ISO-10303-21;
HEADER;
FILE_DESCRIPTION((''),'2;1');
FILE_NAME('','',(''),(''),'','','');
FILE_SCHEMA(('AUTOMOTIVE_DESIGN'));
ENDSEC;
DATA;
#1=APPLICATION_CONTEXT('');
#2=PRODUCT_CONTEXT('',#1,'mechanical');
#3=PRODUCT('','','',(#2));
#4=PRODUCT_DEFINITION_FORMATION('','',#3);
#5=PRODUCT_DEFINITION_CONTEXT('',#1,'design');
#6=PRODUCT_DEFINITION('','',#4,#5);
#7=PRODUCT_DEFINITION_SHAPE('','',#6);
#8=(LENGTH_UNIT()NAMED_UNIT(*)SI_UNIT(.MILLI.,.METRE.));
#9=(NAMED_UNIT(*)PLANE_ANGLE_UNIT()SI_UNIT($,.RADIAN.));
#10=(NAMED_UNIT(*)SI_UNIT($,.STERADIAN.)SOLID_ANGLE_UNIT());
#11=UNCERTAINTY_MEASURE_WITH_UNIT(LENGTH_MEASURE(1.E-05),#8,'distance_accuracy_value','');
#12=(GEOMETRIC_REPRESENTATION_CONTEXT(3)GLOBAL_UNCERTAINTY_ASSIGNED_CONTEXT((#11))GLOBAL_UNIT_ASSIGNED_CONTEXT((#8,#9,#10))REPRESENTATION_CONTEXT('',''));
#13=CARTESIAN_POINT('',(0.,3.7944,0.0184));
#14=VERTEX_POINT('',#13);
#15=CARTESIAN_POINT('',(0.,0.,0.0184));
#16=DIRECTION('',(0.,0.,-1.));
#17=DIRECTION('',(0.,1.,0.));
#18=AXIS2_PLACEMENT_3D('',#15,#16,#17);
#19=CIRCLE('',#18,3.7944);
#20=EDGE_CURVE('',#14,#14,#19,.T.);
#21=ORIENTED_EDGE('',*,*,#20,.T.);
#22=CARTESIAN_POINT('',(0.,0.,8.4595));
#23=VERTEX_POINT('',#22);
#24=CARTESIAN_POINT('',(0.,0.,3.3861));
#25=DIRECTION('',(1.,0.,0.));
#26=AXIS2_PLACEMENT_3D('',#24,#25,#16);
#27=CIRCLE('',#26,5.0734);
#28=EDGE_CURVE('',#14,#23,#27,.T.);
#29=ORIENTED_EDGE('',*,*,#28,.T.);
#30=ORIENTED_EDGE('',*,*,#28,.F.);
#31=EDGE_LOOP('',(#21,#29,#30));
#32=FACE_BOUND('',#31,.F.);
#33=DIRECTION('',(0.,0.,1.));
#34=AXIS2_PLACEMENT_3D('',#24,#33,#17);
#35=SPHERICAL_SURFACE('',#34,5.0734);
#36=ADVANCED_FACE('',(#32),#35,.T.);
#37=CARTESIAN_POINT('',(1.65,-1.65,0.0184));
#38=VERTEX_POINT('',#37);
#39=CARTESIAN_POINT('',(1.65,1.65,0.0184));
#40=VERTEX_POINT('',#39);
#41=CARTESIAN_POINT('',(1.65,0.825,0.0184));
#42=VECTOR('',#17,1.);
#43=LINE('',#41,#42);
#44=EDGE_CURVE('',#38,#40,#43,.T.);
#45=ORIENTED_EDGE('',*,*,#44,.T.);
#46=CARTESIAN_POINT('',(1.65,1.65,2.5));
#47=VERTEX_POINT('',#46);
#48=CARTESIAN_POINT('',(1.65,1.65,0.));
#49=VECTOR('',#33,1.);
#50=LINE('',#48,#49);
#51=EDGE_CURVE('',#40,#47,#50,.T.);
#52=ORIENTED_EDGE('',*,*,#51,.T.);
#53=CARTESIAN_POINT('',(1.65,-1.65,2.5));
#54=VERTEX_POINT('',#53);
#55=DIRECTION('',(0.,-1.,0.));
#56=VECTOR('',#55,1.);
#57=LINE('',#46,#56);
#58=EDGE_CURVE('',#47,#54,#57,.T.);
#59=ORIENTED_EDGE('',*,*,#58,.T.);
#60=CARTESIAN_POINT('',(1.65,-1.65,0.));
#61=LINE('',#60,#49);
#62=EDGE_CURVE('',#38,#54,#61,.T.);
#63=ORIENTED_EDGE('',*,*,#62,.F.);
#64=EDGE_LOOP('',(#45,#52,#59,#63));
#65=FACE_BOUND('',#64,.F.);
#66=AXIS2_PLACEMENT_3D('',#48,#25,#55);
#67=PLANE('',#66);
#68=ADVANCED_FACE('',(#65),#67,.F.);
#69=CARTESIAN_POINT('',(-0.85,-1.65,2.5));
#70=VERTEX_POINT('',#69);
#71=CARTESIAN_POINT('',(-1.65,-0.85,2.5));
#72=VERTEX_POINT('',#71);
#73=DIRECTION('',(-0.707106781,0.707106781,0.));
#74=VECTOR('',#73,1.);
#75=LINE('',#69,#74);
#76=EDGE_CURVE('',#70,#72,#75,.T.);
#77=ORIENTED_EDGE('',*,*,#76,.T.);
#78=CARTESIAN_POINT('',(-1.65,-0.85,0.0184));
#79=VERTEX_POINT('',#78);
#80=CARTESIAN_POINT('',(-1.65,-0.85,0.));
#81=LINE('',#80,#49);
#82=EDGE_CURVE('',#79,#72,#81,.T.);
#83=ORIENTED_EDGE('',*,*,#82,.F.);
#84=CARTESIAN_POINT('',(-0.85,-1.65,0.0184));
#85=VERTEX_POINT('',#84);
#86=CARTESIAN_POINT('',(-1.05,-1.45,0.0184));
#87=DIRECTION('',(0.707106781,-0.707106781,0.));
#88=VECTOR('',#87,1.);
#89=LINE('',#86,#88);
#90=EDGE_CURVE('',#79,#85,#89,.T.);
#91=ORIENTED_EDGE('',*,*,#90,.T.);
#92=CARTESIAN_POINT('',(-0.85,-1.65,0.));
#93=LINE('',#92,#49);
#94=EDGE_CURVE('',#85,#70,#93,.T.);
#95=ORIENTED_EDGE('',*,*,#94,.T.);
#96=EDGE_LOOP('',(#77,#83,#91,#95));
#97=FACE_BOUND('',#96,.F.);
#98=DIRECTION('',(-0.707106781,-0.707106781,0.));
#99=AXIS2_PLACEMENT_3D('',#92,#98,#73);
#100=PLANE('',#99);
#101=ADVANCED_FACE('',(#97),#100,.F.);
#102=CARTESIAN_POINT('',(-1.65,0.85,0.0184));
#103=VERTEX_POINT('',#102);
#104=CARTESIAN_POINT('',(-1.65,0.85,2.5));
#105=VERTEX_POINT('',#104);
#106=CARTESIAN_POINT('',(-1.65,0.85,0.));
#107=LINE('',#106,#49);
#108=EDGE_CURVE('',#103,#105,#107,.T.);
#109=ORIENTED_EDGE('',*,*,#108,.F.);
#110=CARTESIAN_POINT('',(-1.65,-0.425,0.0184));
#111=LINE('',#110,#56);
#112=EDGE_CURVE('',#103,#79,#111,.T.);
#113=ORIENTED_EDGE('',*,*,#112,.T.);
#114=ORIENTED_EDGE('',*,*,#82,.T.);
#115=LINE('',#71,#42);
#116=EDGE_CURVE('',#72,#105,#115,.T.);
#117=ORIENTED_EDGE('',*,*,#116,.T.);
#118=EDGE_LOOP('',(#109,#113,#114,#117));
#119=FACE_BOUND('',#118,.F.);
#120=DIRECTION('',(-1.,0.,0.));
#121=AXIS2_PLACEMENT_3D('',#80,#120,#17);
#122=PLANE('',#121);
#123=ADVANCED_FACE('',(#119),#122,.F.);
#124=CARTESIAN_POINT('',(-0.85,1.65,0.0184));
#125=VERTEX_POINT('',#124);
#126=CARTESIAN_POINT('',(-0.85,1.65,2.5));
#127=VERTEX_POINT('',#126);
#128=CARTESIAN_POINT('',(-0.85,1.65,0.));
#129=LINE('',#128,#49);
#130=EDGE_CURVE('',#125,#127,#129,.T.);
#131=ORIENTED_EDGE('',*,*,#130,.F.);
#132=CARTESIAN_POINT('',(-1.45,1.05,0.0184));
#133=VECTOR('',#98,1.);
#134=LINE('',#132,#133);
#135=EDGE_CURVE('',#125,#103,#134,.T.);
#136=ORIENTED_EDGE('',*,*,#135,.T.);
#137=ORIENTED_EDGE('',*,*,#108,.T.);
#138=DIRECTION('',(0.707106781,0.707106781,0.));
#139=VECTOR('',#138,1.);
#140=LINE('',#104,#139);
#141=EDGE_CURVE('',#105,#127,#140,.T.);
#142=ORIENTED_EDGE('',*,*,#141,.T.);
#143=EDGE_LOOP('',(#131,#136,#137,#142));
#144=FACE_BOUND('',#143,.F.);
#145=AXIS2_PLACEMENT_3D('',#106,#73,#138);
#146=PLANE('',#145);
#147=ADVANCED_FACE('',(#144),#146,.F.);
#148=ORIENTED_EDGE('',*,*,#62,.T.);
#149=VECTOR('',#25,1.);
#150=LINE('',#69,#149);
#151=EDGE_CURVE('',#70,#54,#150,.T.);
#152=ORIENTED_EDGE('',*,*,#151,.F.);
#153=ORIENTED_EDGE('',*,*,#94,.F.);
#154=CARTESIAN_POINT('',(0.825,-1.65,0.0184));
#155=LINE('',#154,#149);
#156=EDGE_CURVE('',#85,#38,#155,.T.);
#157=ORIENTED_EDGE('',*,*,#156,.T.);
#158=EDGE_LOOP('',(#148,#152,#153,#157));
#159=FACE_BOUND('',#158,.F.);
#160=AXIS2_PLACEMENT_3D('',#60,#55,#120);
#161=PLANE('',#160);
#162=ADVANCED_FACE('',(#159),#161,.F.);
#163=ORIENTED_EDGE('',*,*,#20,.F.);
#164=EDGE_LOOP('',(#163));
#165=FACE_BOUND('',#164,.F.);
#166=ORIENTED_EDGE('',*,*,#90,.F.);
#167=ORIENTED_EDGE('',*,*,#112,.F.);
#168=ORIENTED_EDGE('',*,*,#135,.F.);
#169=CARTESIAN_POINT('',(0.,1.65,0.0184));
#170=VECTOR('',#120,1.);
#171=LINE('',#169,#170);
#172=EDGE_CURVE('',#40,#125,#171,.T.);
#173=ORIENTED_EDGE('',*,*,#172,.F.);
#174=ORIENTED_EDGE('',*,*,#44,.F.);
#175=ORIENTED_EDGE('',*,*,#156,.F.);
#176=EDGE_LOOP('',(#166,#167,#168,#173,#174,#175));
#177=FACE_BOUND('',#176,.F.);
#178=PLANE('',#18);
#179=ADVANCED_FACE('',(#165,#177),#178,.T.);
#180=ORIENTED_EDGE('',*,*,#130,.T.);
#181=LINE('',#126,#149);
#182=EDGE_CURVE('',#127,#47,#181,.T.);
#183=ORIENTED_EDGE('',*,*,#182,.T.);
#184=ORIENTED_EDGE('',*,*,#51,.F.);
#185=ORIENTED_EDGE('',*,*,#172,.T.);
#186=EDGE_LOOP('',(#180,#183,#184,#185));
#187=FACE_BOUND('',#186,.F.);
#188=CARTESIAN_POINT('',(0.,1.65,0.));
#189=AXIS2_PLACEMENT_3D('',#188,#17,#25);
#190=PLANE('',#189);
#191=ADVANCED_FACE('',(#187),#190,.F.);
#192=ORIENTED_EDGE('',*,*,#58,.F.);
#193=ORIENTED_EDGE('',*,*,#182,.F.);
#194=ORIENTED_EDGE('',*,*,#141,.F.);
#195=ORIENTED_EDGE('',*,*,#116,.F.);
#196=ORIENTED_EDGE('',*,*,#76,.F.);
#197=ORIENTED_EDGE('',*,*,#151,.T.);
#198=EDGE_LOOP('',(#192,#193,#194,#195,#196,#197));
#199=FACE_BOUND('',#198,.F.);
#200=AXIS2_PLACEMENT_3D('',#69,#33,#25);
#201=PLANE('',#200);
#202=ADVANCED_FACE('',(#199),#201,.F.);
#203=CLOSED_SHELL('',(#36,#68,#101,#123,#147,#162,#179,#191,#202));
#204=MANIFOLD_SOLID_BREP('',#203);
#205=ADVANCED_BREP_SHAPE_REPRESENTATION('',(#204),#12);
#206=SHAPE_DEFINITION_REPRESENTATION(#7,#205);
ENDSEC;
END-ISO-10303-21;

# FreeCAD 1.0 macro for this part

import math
import FreeCAD as App
import Part
import Sketcher

V = App.Vector
Q = App.Units.Quantity


def add_polygon(sketch, points):
    """Adds a closed chain of lines whose ends are joined by coincident constraints."""
    first, n = sketch.GeometryCount, len(points)
    for a, b in zip(points, points[1:] + points[:1]):
        sketch.addGeometry(Part.LineSegment(App.Vector(*a, 0), App.Vector(*b, 0)), False)
    for i in range(n):
        sketch.addConstraint(Sketcher.Constraint("Coincident", first + i, 2, first + (i + 1) % n, 1))

doc = App.newDocument("Part")
body = doc.addObject("PartDesign::Body", "Body")

# Sketch on YZ plane
sketch1 = body.newObject("Sketcher::SketchObject", "Sketch")
sketch1.AttachmentSupport = (doc.getObject("YZ_Plane"), [""])
sketch1.MapMode = "FlatFace"
sketch1.addGeometry(Part.LineSegment(V(0, 0, 0), V(3.8, 0, 0)), False)
sketch1.addGeometry(Part.ArcOfCircle(Part.Circle(V(0, 3.4, 0), V(0, 0, 1), 5.1), math.radians(-42), math.radians(90)), False)
sketch1.addGeometry(Part.LineSegment(V(0, 8.5, 0), V(0, 0, 0)), False)
sketch1.addConstraint(Sketcher.Constraint("Coincident", 0, 2, 1, 1))
sketch1.addConstraint(Sketcher.Constraint("Coincident", 1, 2, 2, 1))
sketch1.addConstraint(Sketcher.Constraint("Coincident", 2, 2, 0, 1))
sketch1.addConstraint(Sketcher.Constraint("Horizontal", 0))
sketch1.addConstraint(Sketcher.Constraint("Vertical", 2))
sketch1.addConstraint(Sketcher.Constraint("PointOnObject", 1, 3, -2))
sketch1.addConstraint(Sketcher.Constraint("PointOnObject", 1, 2, -2))
sketch1.addConstraint(Sketcher.Constraint("Radius", 1, Q("5.0734 mm")))
sketch1.addConstraint(Sketcher.Constraint("DistanceY", 2, 2, 2, 1, Q("8.441 mm")))
sketch1.addConstraint(Sketcher.Constraint("DistanceY", -1, 1, 1, 3, Q("3.386 mm")))
revolution = body.newObject("PartDesign::Revolution", "Revolution")
revolution.Profile = sketch1
revolution.ReferenceAxis = (sketch1, ["V_Axis"])
revolution.Angle = 360

# Sketch on XY plane
sketch2 = body.newObject("Sketcher::SketchObject", "Sketch001")
sketch2.AttachmentSupport = (doc.getObject("XY_Plane"), [""])
sketch2.MapMode = "FlatFace"
add_polygon(sketch2, [(1.6, 1.6), (-0.8, 1.6), (-1.6, 0.8), (-1.6, -0.8), (-0.8, -1.6), (1.6, -1.6)])  # lines 0-5
sketch2.addConstraint(Sketcher.Constraint("Horizontal", 0))
sketch2.addConstraint(Sketcher.Constraint("Vertical", 2))
sketch2.addConstraint(Sketcher.Constraint("Horizontal", 4))
sketch2.addConstraint(Sketcher.Constraint("Vertical", 5))
sketch2.addConstraint(Sketcher.Constraint("Symmetric", 0, 2, 3, 2, -1))
sketch2.addConstraint(Sketcher.Constraint("Perpendicular", 1, 3))
sketch2.addConstraint(Sketcher.Constraint("Equal", 1, 3))
sketch2.addConstraint(Sketcher.Constraint("DistanceX", 0, 2, 0, 1, Q("2.5 mm")))
sketch2.addConstraint(Sketcher.Constraint("DistanceY", 2, 2, 2, 1, Q("1.7 mm")))
sketch2.addConstraint(Sketcher.Constraint("DistanceY", 5, 1, 5, 2, Q("3.3 mm")))
sketch2.addConstraint(Sketcher.Constraint("DistanceX", 0, 2, -1, 1, Q("0.85 mm")))
pocket1 = body.newObject("PartDesign::Pocket", "Pocket")
pocket1.Profile = sketch2
pocket1.Length = 2.5
pocket1.Reversed = True

doc.recompute()
